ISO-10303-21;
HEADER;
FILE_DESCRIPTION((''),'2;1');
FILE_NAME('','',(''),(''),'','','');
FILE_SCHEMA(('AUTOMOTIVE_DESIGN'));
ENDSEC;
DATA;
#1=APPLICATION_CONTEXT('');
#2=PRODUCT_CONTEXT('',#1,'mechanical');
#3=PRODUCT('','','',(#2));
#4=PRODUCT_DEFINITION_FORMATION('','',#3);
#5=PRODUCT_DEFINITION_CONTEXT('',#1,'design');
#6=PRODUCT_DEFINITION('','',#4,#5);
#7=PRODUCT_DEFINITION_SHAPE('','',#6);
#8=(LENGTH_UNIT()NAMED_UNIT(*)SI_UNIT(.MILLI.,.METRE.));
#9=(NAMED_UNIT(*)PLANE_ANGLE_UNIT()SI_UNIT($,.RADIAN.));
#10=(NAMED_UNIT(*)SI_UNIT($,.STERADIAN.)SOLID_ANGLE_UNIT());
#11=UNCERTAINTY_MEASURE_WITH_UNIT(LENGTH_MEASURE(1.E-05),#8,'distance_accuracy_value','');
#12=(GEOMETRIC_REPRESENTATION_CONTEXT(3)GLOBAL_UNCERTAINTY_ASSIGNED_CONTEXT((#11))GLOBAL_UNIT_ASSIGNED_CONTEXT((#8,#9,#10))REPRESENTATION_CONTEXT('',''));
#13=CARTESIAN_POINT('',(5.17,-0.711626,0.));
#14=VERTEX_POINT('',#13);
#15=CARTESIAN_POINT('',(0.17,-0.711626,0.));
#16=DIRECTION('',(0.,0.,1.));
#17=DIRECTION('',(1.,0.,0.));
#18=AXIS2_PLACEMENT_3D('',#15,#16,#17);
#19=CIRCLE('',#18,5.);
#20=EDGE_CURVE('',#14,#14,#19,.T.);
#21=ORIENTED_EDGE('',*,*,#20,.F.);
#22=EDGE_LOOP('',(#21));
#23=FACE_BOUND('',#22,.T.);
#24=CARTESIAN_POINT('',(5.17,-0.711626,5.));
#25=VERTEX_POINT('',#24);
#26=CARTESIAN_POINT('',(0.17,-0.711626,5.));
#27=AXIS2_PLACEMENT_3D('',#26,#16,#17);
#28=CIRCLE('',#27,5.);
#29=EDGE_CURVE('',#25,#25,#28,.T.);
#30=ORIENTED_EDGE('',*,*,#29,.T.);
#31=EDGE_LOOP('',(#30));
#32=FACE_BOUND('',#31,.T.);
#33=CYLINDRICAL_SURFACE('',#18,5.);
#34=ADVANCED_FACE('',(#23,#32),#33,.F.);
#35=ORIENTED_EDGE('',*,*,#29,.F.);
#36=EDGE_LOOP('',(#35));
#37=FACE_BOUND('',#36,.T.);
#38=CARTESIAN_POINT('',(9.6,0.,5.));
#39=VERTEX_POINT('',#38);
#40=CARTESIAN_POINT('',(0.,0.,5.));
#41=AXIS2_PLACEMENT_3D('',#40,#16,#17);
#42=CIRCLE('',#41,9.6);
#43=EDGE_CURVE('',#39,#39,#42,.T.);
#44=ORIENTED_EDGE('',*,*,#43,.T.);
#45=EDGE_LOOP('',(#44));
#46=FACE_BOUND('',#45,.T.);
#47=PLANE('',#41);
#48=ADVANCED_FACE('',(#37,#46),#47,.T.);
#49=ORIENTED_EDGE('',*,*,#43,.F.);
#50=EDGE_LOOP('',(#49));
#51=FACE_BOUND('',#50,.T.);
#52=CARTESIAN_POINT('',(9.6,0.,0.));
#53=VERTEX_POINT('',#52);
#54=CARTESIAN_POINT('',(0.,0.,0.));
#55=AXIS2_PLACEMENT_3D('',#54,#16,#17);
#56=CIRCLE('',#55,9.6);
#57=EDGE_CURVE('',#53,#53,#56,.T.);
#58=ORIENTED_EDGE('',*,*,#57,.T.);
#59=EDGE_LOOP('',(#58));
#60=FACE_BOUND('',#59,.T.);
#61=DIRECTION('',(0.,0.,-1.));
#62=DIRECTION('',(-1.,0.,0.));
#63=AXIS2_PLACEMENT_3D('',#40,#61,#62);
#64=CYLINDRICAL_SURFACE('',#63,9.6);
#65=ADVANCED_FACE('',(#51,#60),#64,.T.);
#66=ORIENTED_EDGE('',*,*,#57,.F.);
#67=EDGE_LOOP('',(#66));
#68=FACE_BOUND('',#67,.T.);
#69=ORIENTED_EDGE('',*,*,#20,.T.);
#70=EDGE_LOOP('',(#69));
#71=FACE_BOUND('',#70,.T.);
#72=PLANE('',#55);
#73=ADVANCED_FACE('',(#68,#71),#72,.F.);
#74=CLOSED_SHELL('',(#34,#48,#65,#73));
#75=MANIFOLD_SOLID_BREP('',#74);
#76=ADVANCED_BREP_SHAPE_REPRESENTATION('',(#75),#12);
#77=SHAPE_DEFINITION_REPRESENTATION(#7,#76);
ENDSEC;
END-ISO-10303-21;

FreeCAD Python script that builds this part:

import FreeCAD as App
import Part
import Sketcher
from FreeCAD import Vector

doc = App.newDocument("Part")
params = doc.addObject("Spreadsheet::Sheet", "Params")
for row, (alias, value) in enumerate([
    ("sketch1_diameter", "19.2 mm"),
    ("pad1_length", "5 mm"),
    ("sketch2_diameter", "10 mm"),
    ("pocket1_length", "5 mm"),
], start=1):
    params.set(f"A{row}", alias)
    params.set(f"B{row}", "=" + value)
    params.setAlias(f"B{row}", alias)

body = doc.addObject("PartDesign::Body", "Body")

# Sketch on XY plane
sketch1 = body.newObject("Sketcher::SketchObject", "Sketch")
sketch1.AttachmentSupport = (doc.getObject("XY_Plane"), [""])
sketch1.MapMode = "FlatFace"
sketch1.addGeometry(Part.Circle(Vector(0, 0, 0), Vector(0, 0, 1), 10), False)
sketch1.addConstraint(Sketcher.Constraint("Coincident", 0, 3, -1, 1))
sketch1.addConstraint(Sketcher.Constraint("Diameter", 0, 19.2))
sketch1.setExpression("Constraints[1]", "Params.sketch1_diameter")
pad1 = body.newObject("PartDesign::Pad", "Pad")
pad1.Profile = sketch1
pad1.setExpression("Length", "Params.pad1_length")

# Sketch on XY plane
sketch2 = body.newObject("Sketcher::SketchObject", "Sketch001")
sketch2.AttachmentSupport = (doc.getObject("XY_Plane"), [""])
sketch2.MapMode = "FlatFace"
sketch2.AttachmentOffset = App.Placement(Vector(0, 0, 5), App.Rotation())
sketch2.addGeometry(Part.Circle(Vector(0, -1, 0), Vector(0, 0, 1), 5), False)
sketch2.addConstraint(Sketcher.Constraint("Diameter", 0, 10.0))
sketch2.addConstraint(Sketcher.Constraint("DistanceX", -1, 1, 0, 3, 0.17))
sketch2.addConstraint(Sketcher.Constraint("DistanceY", 0, 3, -1, 1, 0.711626))
sketch2.setExpression("Constraints[0]", "Params.sketch2_diameter")
pocket1 = body.newObject("PartDesign::Pocket", "Pocket")
pocket1.Profile = sketch2
pocket1.setExpression("Length", "Params.pocket1_length")

doc.recompute()
